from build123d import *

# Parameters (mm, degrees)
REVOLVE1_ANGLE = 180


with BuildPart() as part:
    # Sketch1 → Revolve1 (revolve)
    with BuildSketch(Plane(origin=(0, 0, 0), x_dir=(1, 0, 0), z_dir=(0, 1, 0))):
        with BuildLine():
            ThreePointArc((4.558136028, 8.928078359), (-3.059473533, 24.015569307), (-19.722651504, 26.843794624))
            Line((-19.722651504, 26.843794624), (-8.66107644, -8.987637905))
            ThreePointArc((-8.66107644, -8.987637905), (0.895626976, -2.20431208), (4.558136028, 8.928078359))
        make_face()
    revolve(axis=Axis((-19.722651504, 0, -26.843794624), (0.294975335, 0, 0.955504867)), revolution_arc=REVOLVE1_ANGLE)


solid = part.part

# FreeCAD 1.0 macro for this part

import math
import FreeCAD as App
import Part
import Sketcher
from FreeCAD import Vector

doc = App.newDocument("Part")
body = doc.addObject("PartDesign::Body", "Body")

sketch1 = body.newObject("Sketcher::SketchObject", "Sketch")
sketch1.AttachmentSupport = (doc.getObject("XZ_Plane"), [""])
sketch1.MapMode = "FlatFace"
sketch1.addGeometry([
    Part.ArcOfCircle(Part.Circle(Vector(-14, -9, 0), Vector(0, 0, 1), 19), math.radians(-107), math.radians(0)),
    Part.LineSegment(Vector(-20, -27, 0), Vector(-9, 9, 0)),
    Part.ArcOfCircle(Part.Circle(Vector(-14, -9, 0), Vector(0, 0, 1), 19), math.radians(0), math.radians(73)),
], False)
sketch1.addGeometry(Part.LineSegment(Vector(-20, -27, 0), Vector(-9, 9, 0)), True)
sketch1.addConstraint([
    Sketcher.Constraint("Coincident", 0, 1, 1, 1),
    Sketcher.Constraint("Coincident", 1, 2, 2, 2),
    Sketcher.Constraint("Tangent", 2, 1, 0, 2),
    Sketcher.Constraint("Coincident", 3, 1, 0, 1),
    Sketcher.Constraint("Coincident", 3, 2, 1, 2),
    Sketcher.Constraint("Equal", 0, 2),
    Sketcher.Constraint("Horizontal", 0, 3, 2, 1),
    Sketcher.Constraint("Radius", 0, 18.75),
    Sketcher.Constraint("DistanceY", 0, 3, -1, 1, 8.928078),
    Sketcher.Constraint("DistanceX", 0, 1, -1, 1, 19.722652),
    Sketcher.Constraint("DistanceX", 0, 3, -1, 1, 14.191864),
    Sketcher.Constraint("DistanceX", 1, 2, -1, 1, 8.661076),
])
revolution = body.newObject("PartDesign::Revolution", "Revolution")
revolution.Profile = sketch1
revolution.ReferenceAxis = (sketch1, ["Axis0"])
revolution.Angle = 180

doc.recompute()
